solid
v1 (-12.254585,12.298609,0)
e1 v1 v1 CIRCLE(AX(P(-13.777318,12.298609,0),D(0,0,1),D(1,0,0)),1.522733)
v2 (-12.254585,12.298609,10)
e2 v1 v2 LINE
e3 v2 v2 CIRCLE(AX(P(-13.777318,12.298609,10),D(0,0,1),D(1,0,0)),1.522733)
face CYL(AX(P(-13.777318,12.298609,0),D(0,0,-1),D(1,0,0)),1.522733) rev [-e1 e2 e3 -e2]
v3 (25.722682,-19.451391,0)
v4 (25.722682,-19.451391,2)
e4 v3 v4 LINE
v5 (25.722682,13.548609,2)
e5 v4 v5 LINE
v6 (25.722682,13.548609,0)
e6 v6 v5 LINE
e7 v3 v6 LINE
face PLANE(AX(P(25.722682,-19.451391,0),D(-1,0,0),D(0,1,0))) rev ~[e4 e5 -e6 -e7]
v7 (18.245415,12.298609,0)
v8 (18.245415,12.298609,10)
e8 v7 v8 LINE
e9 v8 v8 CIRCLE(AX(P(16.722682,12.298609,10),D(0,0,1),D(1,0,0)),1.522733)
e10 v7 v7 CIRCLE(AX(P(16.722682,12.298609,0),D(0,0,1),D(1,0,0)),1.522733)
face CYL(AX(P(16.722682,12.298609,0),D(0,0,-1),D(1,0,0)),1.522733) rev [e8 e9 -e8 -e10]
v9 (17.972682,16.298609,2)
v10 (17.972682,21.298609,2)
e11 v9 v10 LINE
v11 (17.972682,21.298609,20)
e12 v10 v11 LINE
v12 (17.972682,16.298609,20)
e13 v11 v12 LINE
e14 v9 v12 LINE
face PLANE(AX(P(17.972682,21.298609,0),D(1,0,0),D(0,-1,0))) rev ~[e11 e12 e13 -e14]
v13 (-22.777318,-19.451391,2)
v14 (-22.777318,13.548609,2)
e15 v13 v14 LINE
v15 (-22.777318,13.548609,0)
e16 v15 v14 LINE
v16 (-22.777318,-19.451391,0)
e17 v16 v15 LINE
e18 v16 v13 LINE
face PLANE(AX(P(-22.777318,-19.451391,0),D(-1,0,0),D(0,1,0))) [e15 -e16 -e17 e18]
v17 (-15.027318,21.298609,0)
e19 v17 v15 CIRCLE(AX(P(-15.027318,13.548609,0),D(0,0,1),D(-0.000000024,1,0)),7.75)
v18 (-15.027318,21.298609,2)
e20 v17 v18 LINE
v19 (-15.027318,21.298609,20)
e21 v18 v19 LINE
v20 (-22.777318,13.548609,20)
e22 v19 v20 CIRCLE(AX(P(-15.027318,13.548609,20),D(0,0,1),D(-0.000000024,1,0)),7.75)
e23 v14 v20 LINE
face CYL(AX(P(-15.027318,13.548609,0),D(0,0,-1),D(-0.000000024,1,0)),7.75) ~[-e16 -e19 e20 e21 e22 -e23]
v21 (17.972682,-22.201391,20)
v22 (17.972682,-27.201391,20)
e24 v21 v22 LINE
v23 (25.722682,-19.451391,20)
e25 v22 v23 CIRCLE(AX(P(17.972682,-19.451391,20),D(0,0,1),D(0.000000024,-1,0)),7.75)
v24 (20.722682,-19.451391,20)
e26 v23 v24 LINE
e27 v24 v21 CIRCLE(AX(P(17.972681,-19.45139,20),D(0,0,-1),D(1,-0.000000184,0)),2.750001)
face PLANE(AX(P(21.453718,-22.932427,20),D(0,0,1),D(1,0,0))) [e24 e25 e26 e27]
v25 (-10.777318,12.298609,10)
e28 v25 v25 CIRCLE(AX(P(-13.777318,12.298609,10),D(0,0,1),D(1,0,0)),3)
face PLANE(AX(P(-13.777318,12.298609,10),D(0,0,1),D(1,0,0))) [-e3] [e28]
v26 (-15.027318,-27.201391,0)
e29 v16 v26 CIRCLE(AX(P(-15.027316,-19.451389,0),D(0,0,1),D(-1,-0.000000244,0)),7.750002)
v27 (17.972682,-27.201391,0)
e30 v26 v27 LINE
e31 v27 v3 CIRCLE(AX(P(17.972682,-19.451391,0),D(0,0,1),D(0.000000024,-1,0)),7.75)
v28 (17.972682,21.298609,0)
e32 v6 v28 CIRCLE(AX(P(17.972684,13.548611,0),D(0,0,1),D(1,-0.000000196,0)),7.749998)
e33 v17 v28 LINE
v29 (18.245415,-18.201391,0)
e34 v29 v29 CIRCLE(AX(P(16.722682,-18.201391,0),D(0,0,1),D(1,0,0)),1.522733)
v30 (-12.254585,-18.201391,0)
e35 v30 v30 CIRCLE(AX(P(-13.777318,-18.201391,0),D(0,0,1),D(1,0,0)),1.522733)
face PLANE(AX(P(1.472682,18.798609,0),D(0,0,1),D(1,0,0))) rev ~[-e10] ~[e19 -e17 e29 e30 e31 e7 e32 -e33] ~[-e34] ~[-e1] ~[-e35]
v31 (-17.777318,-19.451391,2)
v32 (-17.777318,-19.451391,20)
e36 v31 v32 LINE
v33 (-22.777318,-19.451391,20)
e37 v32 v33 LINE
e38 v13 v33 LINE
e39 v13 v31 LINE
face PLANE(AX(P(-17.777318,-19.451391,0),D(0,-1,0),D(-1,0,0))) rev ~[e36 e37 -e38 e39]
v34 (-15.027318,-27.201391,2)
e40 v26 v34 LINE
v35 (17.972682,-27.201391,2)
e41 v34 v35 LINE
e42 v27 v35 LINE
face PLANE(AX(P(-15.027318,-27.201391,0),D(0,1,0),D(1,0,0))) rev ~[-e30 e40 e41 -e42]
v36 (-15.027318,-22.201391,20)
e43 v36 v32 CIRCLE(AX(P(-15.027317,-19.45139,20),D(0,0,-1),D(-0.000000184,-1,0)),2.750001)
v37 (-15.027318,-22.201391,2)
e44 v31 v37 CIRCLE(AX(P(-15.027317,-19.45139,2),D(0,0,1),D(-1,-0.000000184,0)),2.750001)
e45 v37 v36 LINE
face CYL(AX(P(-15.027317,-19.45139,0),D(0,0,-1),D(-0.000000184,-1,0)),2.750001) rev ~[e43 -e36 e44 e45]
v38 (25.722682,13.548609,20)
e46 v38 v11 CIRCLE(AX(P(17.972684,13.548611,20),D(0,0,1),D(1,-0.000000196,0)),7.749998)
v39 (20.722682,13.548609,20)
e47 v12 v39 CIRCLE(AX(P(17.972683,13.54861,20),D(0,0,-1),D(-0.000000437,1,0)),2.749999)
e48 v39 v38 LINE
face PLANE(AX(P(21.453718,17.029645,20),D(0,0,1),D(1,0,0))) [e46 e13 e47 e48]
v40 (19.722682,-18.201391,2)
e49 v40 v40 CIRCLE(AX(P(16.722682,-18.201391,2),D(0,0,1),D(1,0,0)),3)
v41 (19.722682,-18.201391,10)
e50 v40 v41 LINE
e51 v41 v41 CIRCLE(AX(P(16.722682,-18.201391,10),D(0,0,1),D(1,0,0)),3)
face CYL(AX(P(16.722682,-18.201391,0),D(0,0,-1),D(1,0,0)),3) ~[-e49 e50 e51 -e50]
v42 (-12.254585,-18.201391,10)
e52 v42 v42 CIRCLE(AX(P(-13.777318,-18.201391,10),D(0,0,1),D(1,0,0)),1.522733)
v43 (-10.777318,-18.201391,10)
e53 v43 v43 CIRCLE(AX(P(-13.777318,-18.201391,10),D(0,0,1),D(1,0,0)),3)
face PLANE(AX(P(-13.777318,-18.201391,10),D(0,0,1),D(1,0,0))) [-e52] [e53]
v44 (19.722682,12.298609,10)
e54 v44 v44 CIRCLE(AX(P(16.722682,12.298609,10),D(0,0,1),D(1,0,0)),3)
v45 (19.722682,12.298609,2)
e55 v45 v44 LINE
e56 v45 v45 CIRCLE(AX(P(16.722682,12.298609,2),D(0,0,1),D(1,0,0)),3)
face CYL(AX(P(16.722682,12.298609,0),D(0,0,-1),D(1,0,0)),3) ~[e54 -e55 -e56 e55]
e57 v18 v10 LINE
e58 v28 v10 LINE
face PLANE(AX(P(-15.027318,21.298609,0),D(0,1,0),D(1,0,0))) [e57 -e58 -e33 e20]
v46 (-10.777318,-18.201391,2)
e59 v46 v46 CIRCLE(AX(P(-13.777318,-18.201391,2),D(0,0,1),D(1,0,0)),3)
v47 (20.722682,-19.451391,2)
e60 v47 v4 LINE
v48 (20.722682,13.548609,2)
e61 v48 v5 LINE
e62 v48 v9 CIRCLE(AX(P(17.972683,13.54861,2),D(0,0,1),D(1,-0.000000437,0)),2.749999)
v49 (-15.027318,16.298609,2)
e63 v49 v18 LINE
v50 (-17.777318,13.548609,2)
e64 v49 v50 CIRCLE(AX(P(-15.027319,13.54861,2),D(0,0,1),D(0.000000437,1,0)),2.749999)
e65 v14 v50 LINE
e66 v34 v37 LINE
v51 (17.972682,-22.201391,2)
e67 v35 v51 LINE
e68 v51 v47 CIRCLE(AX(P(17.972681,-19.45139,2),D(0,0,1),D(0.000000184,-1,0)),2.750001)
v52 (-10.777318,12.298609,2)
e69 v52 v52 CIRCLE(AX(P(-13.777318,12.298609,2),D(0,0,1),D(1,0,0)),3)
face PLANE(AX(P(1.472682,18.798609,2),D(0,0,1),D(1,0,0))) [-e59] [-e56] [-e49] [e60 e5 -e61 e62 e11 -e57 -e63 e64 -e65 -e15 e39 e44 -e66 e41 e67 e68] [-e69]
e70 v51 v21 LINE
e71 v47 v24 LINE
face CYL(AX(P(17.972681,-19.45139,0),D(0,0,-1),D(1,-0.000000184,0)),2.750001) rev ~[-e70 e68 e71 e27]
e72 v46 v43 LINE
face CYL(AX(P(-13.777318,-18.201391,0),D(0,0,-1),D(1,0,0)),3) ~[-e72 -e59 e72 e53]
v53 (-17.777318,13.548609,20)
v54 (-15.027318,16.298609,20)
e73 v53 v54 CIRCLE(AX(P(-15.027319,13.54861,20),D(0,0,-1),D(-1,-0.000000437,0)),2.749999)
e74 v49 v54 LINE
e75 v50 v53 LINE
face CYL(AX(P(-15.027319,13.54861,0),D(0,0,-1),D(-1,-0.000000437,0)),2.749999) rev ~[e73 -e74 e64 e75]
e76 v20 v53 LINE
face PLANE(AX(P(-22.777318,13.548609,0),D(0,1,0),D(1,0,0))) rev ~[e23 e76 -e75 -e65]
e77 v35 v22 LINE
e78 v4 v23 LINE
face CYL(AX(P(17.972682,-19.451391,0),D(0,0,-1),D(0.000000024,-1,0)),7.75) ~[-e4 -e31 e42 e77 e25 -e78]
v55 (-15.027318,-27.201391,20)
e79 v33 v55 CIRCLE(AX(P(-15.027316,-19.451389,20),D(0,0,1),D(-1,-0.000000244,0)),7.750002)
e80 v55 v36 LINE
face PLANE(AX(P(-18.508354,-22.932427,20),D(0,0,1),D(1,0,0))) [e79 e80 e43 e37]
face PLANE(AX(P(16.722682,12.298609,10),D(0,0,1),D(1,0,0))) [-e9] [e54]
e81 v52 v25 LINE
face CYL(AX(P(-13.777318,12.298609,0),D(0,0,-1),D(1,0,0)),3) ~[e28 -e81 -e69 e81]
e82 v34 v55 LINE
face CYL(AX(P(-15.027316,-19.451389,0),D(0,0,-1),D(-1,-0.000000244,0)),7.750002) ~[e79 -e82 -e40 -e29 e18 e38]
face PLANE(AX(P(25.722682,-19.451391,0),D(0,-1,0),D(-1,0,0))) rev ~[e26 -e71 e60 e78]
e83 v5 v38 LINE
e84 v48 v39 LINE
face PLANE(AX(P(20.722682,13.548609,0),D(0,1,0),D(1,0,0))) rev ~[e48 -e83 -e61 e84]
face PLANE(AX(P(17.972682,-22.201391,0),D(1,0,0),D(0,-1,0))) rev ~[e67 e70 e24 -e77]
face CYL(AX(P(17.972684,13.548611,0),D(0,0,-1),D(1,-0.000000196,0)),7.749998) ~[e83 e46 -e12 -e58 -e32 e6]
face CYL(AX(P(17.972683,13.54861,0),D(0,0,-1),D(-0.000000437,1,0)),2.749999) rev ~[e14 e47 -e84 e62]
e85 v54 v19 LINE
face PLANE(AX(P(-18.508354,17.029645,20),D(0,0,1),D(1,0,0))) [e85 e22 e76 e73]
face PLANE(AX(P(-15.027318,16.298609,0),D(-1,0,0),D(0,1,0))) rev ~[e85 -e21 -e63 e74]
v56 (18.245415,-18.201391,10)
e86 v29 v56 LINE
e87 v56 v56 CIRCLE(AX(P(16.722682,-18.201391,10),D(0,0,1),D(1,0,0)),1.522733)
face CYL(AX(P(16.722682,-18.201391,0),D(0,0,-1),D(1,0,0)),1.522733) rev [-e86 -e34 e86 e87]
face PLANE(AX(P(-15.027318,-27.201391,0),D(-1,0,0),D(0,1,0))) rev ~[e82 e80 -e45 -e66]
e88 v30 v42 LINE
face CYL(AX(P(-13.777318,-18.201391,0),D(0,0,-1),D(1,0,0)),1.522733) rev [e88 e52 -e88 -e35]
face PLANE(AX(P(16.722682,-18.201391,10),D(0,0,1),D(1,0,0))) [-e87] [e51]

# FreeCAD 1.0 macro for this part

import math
import FreeCAD as App
import Part
import Sketcher
from FreeCAD import Vector
Q = App.Units.Quantity

doc = App.newDocument("Part")
body = doc.addObject("PartDesign::Body", "Body")

sketch1 = body.newObject("Sketcher::SketchObject", "Sketch")
sketch1.AttachmentSupport = (doc.getObject("XY_Plane"), [""])
sketch1.MapMode = "FlatFace"
sketch1.addGeometry(Part.LineSegment(Vector(-15, 21.3, 0), Vector(-15, 16.3, 0)), False)
sketch1.addGeometry(Part.ArcOfCircle(Part.Circle(Vector(-15, 13.5, 0), Vector(0, 0, 1), 2.7), math.radians(90), math.radians(180)), False)
sketch1.addGeometry(Part.LineSegment(Vector(-17.8, 13.5, 0), Vector(-22.8, 13.5, 0)), False)
sketch1.addGeometry(Part.LineSegment(Vector(-22.8, 13.5, 0), Vector(-22.8, -19.5, 0)), False)
sketch1.addGeometry(Part.LineSegment(Vector(-22.8, -19.5, 0), Vector(-17.8, -19.5, 0)), False)
sketch1.addGeometry(Part.ArcOfCircle(Part.Circle(Vector(-15, -19.5, 0), Vector(0, 0, 1), 2.8), math.radians(-180), math.radians(-90)), False)
sketch1.addGeometry(Part.LineSegment(Vector(-15, -22.2, 0), Vector(-15, -27.2, 0)), False)
sketch1.addGeometry(Part.LineSegment(Vector(-15, -27.2, 0), Vector(18, -27.2, 0)), False)
sketch1.addGeometry(Part.LineSegment(Vector(18, -27.2, 0), Vector(18, -22.2, 0)), False)
sketch1.addGeometry(Part.ArcOfCircle(Part.Circle(Vector(18, -19.5, 0), Vector(0, 0, 1), 2.8), math.radians(-90), math.radians(0)), False)
sketch1.addGeometry(Part.LineSegment(Vector(20.7, -19.5, 0), Vector(25.7, -19.5, 0)), False)
sketch1.addGeometry(Part.LineSegment(Vector(25.7, -19.5, 0), Vector(25.7, 13.5, 0)), False)
sketch1.addGeometry(Part.LineSegment(Vector(25.7, 13.5, 0), Vector(20.7, 13.5, 0)), False)
sketch1.addGeometry(Part.ArcOfCircle(Part.Circle(Vector(18, 13.5, 0), Vector(0, 0, 1), 2.7), math.radians(0), math.radians(90)), False)
sketch1.addGeometry(Part.LineSegment(Vector(18, 16.3, 0), Vector(18, 21.3, 0)), False)
sketch1.addGeometry(Part.LineSegment(Vector(18, 21.3, 0), Vector(-15, 21.3, 0)), False)
sketch1.addGeometry(Part.Circle(Vector(-13.8, -18.2, 0), Vector(0, 0, 1), 3), False)
sketch1.addGeometry(Part.Circle(Vector(16.7, -18.2, 0), Vector(0, 0, 1), 3), False)
sketch1.addGeometry(Part.Circle(Vector(-13.8, 12.3, 0), Vector(0, 0, 1), 3), False)
sketch1.addGeometry(Part.Circle(Vector(16.7, 12.3, 0), Vector(0, 0, 1), 3), False)
sketch1.addConstraint(Sketcher.Constraint("Coincident", 0, 2, 1, 1))
sketch1.addConstraint(Sketcher.Constraint("Coincident", 1, 2, 2, 1))
sketch1.addConstraint(Sketcher.Constraint("Coincident", 2, 2, 3, 1))
sketch1.addConstraint(Sketcher.Constraint("Coincident", 3, 2, 4, 1))
sketch1.addConstraint(Sketcher.Constraint("Coincident", 4, 2, 5, 1))
sketch1.addConstraint(Sketcher.Constraint("Coincident", 5, 2, 6, 1))
sketch1.addConstraint(Sketcher.Constraint("Coincident", 6, 2, 7, 1))
sketch1.addConstraint(Sketcher.Constraint("Coincident", 7, 2, 8, 1))
sketch1.addConstraint(Sketcher.Constraint("Coincident", 8, 2, 9, 1))
sketch1.addConstraint(Sketcher.Constraint("Coincident", 9, 2, 10, 1))
sketch1.addConstraint(Sketcher.Constraint("Coincident", 10, 2, 11, 1))
sketch1.addConstraint(Sketcher.Constraint("Coincident", 11, 2, 12, 1))
sketch1.addConstraint(Sketcher.Constraint("Coincident", 12, 2, 13, 1))
sketch1.addConstraint(Sketcher.Constraint("Coincident", 13, 2, 14, 1))
sketch1.addConstraint(Sketcher.Constraint("Coincident", 14, 2, 15, 1))
sketch1.addConstraint(Sketcher.Constraint("Coincident", 15, 2, 0, 1))
sketch1.addConstraint(Sketcher.Constraint("Vertical", 0))
sketch1.addConstraint(Sketcher.Constraint("Horizontal", 2))
sketch1.addConstraint(Sketcher.Constraint("Vertical", 3))
sketch1.addConstraint(Sketcher.Constraint("Horizontal", 4))
sketch1.addConstraint(Sketcher.Constraint("Vertical", 6))
sketch1.addConstraint(Sketcher.Constraint("Horizontal", 7))
sketch1.addConstraint(Sketcher.Constraint("Vertical", 8))
sketch1.addConstraint(Sketcher.Constraint("Horizontal", 10))
sketch1.addConstraint(Sketcher.Constraint("Vertical", 11))
sketch1.addConstraint(Sketcher.Constraint("Horizontal", 12))
sketch1.addConstraint(Sketcher.Constraint("Vertical", 14))
sketch1.addConstraint(Sketcher.Constraint("Horizontal", 15))
sketch1.addConstraint(Sketcher.Constraint("Equal", 1, 5))
sketch1.addConstraint(Sketcher.Constraint("Equal", 5, 9))
sketch1.addConstraint(Sketcher.Constraint("Equal", 9, 13))
sketch1.addConstraint(Sketcher.Constraint("Equal", 16, 17))
sketch1.addConstraint(Sketcher.Constraint("Equal", 17, 18))
sketch1.addConstraint(Sketcher.Constraint("Equal", 18, 19))
sketch1.addConstraint(Sketcher.Constraint("Horizontal", 5, 3, 9, 3))
sketch1.addConstraint(Sketcher.Constraint("Horizontal", 1, 3, 13, 3))
sketch1.addConstraint(Sketcher.Constraint("Horizontal", 16, 3, 17, 3))
sketch1.addConstraint(Sketcher.Constraint("Horizontal", 18, 3, 19, 3))
sketch1.addConstraint(Sketcher.Constraint("Horizontal", 13, 3, 1, 2))
sketch1.addConstraint(Sketcher.Constraint("Horizontal", 9, 3, 3, 2))
sketch1.addConstraint(Sketcher.Constraint("Horizontal", 4, 2, 9, 2))
sketch1.addConstraint(Sketcher.Constraint("Horizontal", 2, 2, 11, 2))
sketch1.addConstraint(Sketcher.Constraint("Vertical", 1, 3, 5, 3))
sketch1.addConstraint(Sketcher.Constraint("Vertical", 9, 3, 13, 3))
sketch1.addConstraint(Sketcher.Constraint("Vertical", 16, 3, 18, 3))
sketch1.addConstraint(Sketcher.Constraint("Vertical", 17, 3, 19, 3))
sketch1.addConstraint(Sketcher.Constraint("Vertical", 5, 3, 0, 2))
sketch1.addConstraint(Sketcher.Constraint("Vertical", 0, 2, 5, 2))
sketch1.addConstraint(Sketcher.Constraint("Vertical", 13, 3, 7, 2))
sketch1.addConstraint(Sketcher.Constraint("Vertical", 8, 2, 13, 2))
sketch1.addConstraint(Sketcher.Constraint("Equal", 4, 10))
sketch1.addConstraint(Sketcher.Constraint("Equal", 12, 0))
sketch1.addConstraint(Sketcher.Constraint("Equal", 15, 3))
sketch1.addConstraint(Sketcher.Constraint("Equal", 0, 6))
sketch1.addConstraint(Sketcher.Constraint("Diameter", 16, Q("6 mm")))
sketch1.addConstraint(Sketcher.Constraint("DistanceX", 2, 2, 2, 1, Q("5 mm")))
sketch1.addConstraint(Sketcher.Constraint("DistanceX", 7, 1, 7, 2, Q("33 mm")))
sketch1.addConstraint(Sketcher.Constraint("Radius", 1, Q("2.749999 mm")))
sketch1.addConstraint(Sketcher.Constraint("DistanceY", 18, 3, 0, 2, Q("4 mm")))
sketch1.addConstraint(Sketcher.Constraint("DistanceX", 1, 2, 18, 3, Q("4 mm")))
sketch1.addConstraint(Sketcher.Constraint("DistanceY", 5, 2, 16, 3, Q("4 mm")))
sketch1.addConstraint(Sketcher.Constraint("DistanceX", 17, 3, 9, 2, Q("4 mm")))
sketch1.addConstraint(Sketcher.Constraint("DistanceX", 1, 3, -1, 1, Q("15.027319 mm")))
sketch1.addConstraint(Sketcher.Constraint("DistanceY", -1, 1, 1, 3, Q("13.54861 mm")))
pad1 = body.newObject("PartDesign::Pad", "Pad")
pad1.Profile = sketch1
pad1.Length = 2

sketch2 = body.newObject("Sketcher::SketchObject", "Sketch001")
sketch2.AttachmentSupport = (doc.getObject("XY_Plane"), [""])
sketch2.MapMode = "FlatFace"
sketch2.addGeometry(Part.ArcOfCircle(Part.Circle(Vector(-15, 13.5, 0), Vector(0, 0, 1), 2.7), math.radians(90), math.radians(180)), False)
sketch2.addGeometry(Part.LineSegment(Vector(-15, 16.3, 0), Vector(-15, 21.3, 0)), False)
sketch2.addGeometry(Part.ArcOfCircle(Part.Circle(Vector(-15, 13.5, 0), Vector(0, 0, 1), 7.8), math.radians(90), math.radians(180)), False)
sketch2.addGeometry(Part.LineSegment(Vector(-22.8, 13.5, 0), Vector(-17.8, 13.5, 0)), False)
sketch2.addGeometry(Part.LineSegment(Vector(18, 21.3, 0), Vector(18, 16.3, 0)), False)
sketch2.addGeometry(Part.ArcOfCircle(Part.Circle(Vector(18, 13.5, 0), Vector(0, 0, 1), 2.7), math.radians(0), math.radians(90)), False)
sketch2.addGeometry(Part.LineSegment(Vector(20.7, 13.5, 0), Vector(25.7, 13.5, 0)), False)
sketch2.addGeometry(Part.ArcOfCircle(Part.Circle(Vector(18, 13.5, 0), Vector(0, 0, 1), 7.7), math.radians(0), math.radians(90)), False)
sketch2.addGeometry(Part.LineSegment(Vector(25.7, -19.5, 0), Vector(20.7, -19.5, 0)), False)
sketch2.addGeometry(Part.ArcOfCircle(Part.Circle(Vector(18, -19.5, 0), Vector(0, 0, 1), 2.8), math.radians(-90), math.radians(0)), False)
sketch2.addGeometry(Part.LineSegment(Vector(18, -22.2, 0), Vector(18, -27.2, 0)), False)
sketch2.addGeometry(Part.ArcOfCircle(Part.Circle(Vector(18, -19.5, 0), Vector(0, 0, 1), 7.8), math.radians(-90), math.radians(0)), False)
sketch2.addGeometry(Part.ArcOfCircle(Part.Circle(Vector(-15, -19.5, 0), Vector(0, 0, 1), 2.8), math.radians(-180), math.radians(-90)), False)
sketch2.addGeometry(Part.LineSegment(Vector(-17.8, -19.5, 0), Vector(-22.8, -19.5, 0)), False)
sketch2.addGeometry(Part.ArcOfCircle(Part.Circle(Vector(-15, -19.5, 0), Vector(0, 0, 1), 7.8), math.radians(-180), math.radians(-90)), False)
sketch2.addGeometry(Part.LineSegment(Vector(-15, -27.2, 0), Vector(-15, -22.2, 0)), False)
sketch2.addConstraint(Sketcher.Constraint("Coincident", 0, 1, 1, 1))
sketch2.addConstraint(Sketcher.Constraint("Coincident", 1, 2, 2, 1))
sketch2.addConstraint(Sketcher.Constraint("Coincident", 2, 2, 3, 1))
sketch2.addConstraint(Sketcher.Constraint("Coincident", 3, 2, 0, 2))
sketch2.addConstraint(Sketcher.Constraint("Coincident", 4, 2, 5, 2))
sketch2.addConstraint(Sketcher.Constraint("Coincident", 5, 1, 6, 1))
sketch2.addConstraint(Sketcher.Constraint("Coincident", 6, 2, 7, 1))
sketch2.addConstraint(Sketcher.Constraint("Coincident", 7, 2, 4, 1))
sketch2.addConstraint(Sketcher.Constraint("Coincident", 8, 2, 9, 2))
sketch2.addConstraint(Sketcher.Constraint("Coincident", 9, 1, 10, 1))
sketch2.addConstraint(Sketcher.Constraint("Coincident", 10, 2, 11, 1))
sketch2.addConstraint(Sketcher.Constraint("Coincident", 11, 2, 8, 1))
sketch2.addConstraint(Sketcher.Constraint("Coincident", 12, 1, 13, 1))
sketch2.addConstraint(Sketcher.Constraint("Coincident", 13, 2, 14, 1))
sketch2.addConstraint(Sketcher.Constraint("Coincident", 14, 2, 15, 1))
sketch2.addConstraint(Sketcher.Constraint("Coincident", 15, 2, 12, 2))
sketch2.addConstraint(Sketcher.Constraint("Vertical", 1))
sketch2.addConstraint(Sketcher.Constraint("Horizontal", 3))
sketch2.addConstraint(Sketcher.Constraint("Vertical", 4))
sketch2.addConstraint(Sketcher.Constraint("Horizontal", 6))
sketch2.addConstraint(Sketcher.Constraint("Horizontal", 8))
sketch2.addConstraint(Sketcher.Constraint("Vertical", 10))
sketch2.addConstraint(Sketcher.Constraint("Horizontal", 13))
sketch2.addConstraint(Sketcher.Constraint("Vertical", 15))
sketch2.addConstraint(Sketcher.Constraint("Coincident", 2, 3, 0, 3))
sketch2.addConstraint(Sketcher.Constraint("Coincident", 7, 3, 5, 3))
sketch2.addConstraint(Sketcher.Constraint("Coincident", 11, 3, 9, 3))
sketch2.addConstraint(Sketcher.Constraint("Coincident", 14, 3, 12, 3))
sketch2.addConstraint(Sketcher.Constraint("Equal", 0, 5))
sketch2.addConstraint(Sketcher.Constraint("Equal", 2, 7))
sketch2.addConstraint(Sketcher.Constraint("Equal", 5, 9))
sketch2.addConstraint(Sketcher.Constraint("Equal", 7, 11))
sketch2.addConstraint(Sketcher.Constraint("Equal", 9, 12))
sketch2.addConstraint(Sketcher.Constraint("Equal", 11, 14))
sketch2.addConstraint(Sketcher.Constraint("Horizontal", 2, 3, 5, 3))
sketch2.addConstraint(Sketcher.Constraint("Horizontal", 11, 3, 12, 3))
sketch2.addConstraint(Sketcher.Constraint("Horizontal", 7, 3, 2, 2))
sketch2.addConstraint(Sketcher.Constraint("Horizontal", 3, 2, 5, 1))
sketch2.addConstraint(Sketcher.Constraint("Horizontal", 14, 3, 8, 2))
sketch2.addConstraint(Sketcher.Constraint("Horizontal", 11, 2, 12, 1))
sketch2.addConstraint(Sketcher.Constraint("Vertical", 5, 3, 9, 3))
sketch2.addConstraint(Sketcher.Constraint("Vertical", 2, 3, 12, 3))
sketch2.addConstraint(Sketcher.Constraint("Vertical", 14, 3, 0, 1))
sketch2.addConstraint(Sketcher.Constraint("Vertical", 11, 3, 4, 2))
sketch2.addConstraint(Sketcher.Constraint("Vertical", 7, 2, 9, 1))
sketch2.addConstraint(Sketcher.Constraint("Vertical", 1, 2, 14, 2))
sketch2.addConstraint(Sketcher.Constraint("DistanceX", 3, 1, 3, 2, Q("5 mm")))
sketch2.addConstraint(Sketcher.Constraint("Radius", 0, Q("2.749999 mm")))
sketch2.addConstraint(Sketcher.Constraint("DistanceX", 2, 3, 5, 3, Q("33.000001 mm")))
sketch2.addConstraint(Sketcher.Constraint("DistanceY", 9, 3, 5, 3, Q("33.000001 mm")))
sketch2.addConstraint(Sketcher.Constraint("DistanceX", 0, 3, -1, 1, Q("15.027319 mm")))
sketch2.addConstraint(Sketcher.Constraint("DistanceY", -1, 1, 0, 3, Q("13.54861 mm")))
pad2 = body.newObject("PartDesign::Pad", "Pad001")
pad2.Profile = sketch2
pad2.Length = 20

sketch3 = body.newObject("Sketcher::SketchObject", "Sketch002")
sketch3.AttachmentSupport = (doc.getObject("XY_Plane"), [""])
sketch3.MapMode = "FlatFace"
sketch3.addGeometry(Part.Circle(Vector(-13.8, 12.3, 0), Vector(0, 0, 1), 3), False)
sketch3.addGeometry(Part.Circle(Vector(-13.8, 12.3, 0), Vector(0, 0, 1), 1.5), False)
sketch3.addGeometry(Part.Circle(Vector(16.7, 12.3, 0), Vector(0, 0, 1), 3), False)
sketch3.addGeometry(Part.Circle(Vector(16.7, 12.3, 0), Vector(0, 0, 1), 1.5), False)
sketch3.addGeometry(Part.Circle(Vector(16.7, -18.2, 0), Vector(0, 0, 1), 3), False)
sketch3.addGeometry(Part.Circle(Vector(16.7, -18.2, 0), Vector(0, 0, 1), 1.5), False)
sketch3.addGeometry(Part.Circle(Vector(-13.8, -18.2, 0), Vector(0, 0, 1), 3), False)
sketch3.addGeometry(Part.Circle(Vector(-13.8, -18.2, 0), Vector(0, 0, 1), 1.5), False)
sketch3.addConstraint(Sketcher.Constraint("Coincident", 1, 3, 0, 3))
sketch3.addConstraint(Sketcher.Constraint("Coincident", 3, 3, 2, 3))
sketch3.addConstraint(Sketcher.Constraint("Coincident", 5, 3, 4, 3))
sketch3.addConstraint(Sketcher.Constraint("Coincident", 7, 3, 6, 3))
sketch3.addConstraint(Sketcher.Constraint("Equal", 0, 2))
sketch3.addConstraint(Sketcher.Constraint("Equal", 1, 3))
sketch3.addConstraint(Sketcher.Constraint("Equal", 2, 4))
sketch3.addConstraint(Sketcher.Constraint("Equal", 3, 5))
sketch3.addConstraint(Sketcher.Constraint("Equal", 4, 6))
sketch3.addConstraint(Sketcher.Constraint("Equal", 5, 7))
sketch3.addConstraint(Sketcher.Constraint("Horizontal", 1, 3, 2, 3))
sketch3.addConstraint(Sketcher.Constraint("Horizontal", 5, 3, 6, 3))
sketch3.addConstraint(Sketcher.Constraint("Vertical", 3, 3, 4, 3))
sketch3.addConstraint(Sketcher.Constraint("Vertical", 1, 3, 6, 3))
sketch3.addConstraint(Sketcher.Constraint("Diameter", 0, Q("6 mm")))
sketch3.addConstraint(Sketcher.Constraint("DistanceX", 0, 3, 2, 3, Q("30.5 mm")))
sketch3.addConstraint(Sketcher.Constraint("DistanceY", 4, 3, 2, 3, Q("30.5 mm")))
sketch3.addConstraint(Sketcher.Constraint("Diameter", 1, Q("3.045466 mm")))
sketch3.addConstraint(Sketcher.Constraint("DistanceY", -1, 1, 0, 3, Q("12.298609 mm")))
sketch3.addConstraint(Sketcher.Constraint("DistanceX", -1, 1, 2, 3, Q("16.722682 mm")))
pad3 = body.newObject("PartDesign::Pad", "Pad002")
pad3.Profile = sketch3
pad3.Length = 10

doc.recompute()
